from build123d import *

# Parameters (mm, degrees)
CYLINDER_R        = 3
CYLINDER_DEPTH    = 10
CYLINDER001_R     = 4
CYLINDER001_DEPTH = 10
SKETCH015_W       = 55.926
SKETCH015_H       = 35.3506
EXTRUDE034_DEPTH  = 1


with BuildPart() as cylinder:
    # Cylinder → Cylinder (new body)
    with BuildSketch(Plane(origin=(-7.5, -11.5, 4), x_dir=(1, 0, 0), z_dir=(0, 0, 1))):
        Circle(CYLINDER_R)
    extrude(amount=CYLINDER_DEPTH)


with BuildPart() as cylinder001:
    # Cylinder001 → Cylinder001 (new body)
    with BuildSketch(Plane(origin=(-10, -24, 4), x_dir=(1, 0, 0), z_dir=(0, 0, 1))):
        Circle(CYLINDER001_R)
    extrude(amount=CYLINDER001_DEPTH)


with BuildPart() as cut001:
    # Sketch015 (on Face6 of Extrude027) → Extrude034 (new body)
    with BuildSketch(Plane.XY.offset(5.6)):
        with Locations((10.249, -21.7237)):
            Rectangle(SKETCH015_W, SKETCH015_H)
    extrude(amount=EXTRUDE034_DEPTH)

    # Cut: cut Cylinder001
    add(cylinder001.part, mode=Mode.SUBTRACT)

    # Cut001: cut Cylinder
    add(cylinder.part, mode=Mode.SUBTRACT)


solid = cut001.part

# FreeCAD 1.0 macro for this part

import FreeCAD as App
import Part
import Sketcher

V = App.Vector
Q = App.Units.Quantity


def add_polygon(sketch, points):
    """Adds a closed chain of lines whose ends are joined by coincident constraints."""
    first, n = sketch.GeometryCount, len(points)
    for a, b in zip(points, points[1:] + points[:1]):
        sketch.addGeometry(Part.LineSegment(App.Vector(*a, 0), App.Vector(*b, 0)), False)
    for i in range(n):
        sketch.addConstraint(Sketcher.Constraint("Coincident", first + i, 2, first + (i + 1) % n, 1))

doc = App.newDocument("Part")
body = doc.addObject("PartDesign::Body", "Body")

sketch1 = body.newObject("Sketcher::SketchObject", "Sketch")
sketch1.AttachmentSupport = (doc.getObject("XY_Plane"), [""])
sketch1.MapMode = "FlatFace"
sketch1.AttachmentOffset = App.Placement(V(0, 0, 4), App.Rotation())
sketch1.addGeometry(Part.Circle(V(-7.5, -11.5, 0), V(0, 0, 1), 3), False)
sketch1.addConstraint([
    Sketcher.Constraint("Diameter", 0, Q("6 mm")),
    Sketcher.Constraint("DistanceX", 0, 3, -1, 1, Q("7.5 mm")),
    Sketcher.Constraint("DistanceY", 0, 3, -1, 1, Q("11.5 mm")),
])
pad1 = body.newObject("PartDesign::Pad", "Pad")
pad1.Profile = sketch1
pad1.Length = 10
body2 = doc.addObject("PartDesign::Body", "Body001")

sketch2 = body2.newObject("Sketcher::SketchObject", "Sketch001")
sketch2.AttachmentSupport = (doc.getObject("XY_Plane001"), [""])
sketch2.MapMode = "FlatFace"
sketch2.AttachmentOffset = App.Placement(V(0, 0, 4), App.Rotation())
sketch2.addGeometry(Part.Circle(V(-10, -24, 0), V(0, 0, 1), 4), False)
sketch2.addConstraint([
    Sketcher.Constraint("Diameter", 0, Q("8 mm")),
    Sketcher.Constraint("DistanceX", 0, 3, -1, 1, Q("10 mm")),
    Sketcher.Constraint("DistanceY", 0, 3, -1, 1, Q("24 mm")),
])
pad2 = body2.newObject("PartDesign::Pad", "Pad001")
pad2.Profile = sketch2
pad2.Length = 10
body3 = doc.addObject("PartDesign::Body", "Body002")

sketch3 = body3.newObject("Sketcher::SketchObject", "Sketch002")
sketch3.AttachmentSupport = (doc.getObject("XY_Plane002"), [""])
sketch3.MapMode = "FlatFace"
sketch3.AttachmentOffset = App.Placement(V(0, 0, 5.6), App.Rotation())
add_polygon(sketch3, [(-18, -4), (-18, -39), (38, -39), (38, -4)])
sketch3.addConstraint([
    Sketcher.Constraint("Vertical", 0),
    Sketcher.Constraint("Horizontal", 1),
    Sketcher.Constraint("Vertical", 2),
    Sketcher.Constraint("Horizontal", 3),
    Sketcher.Constraint("DistanceX", 1, 1, 1, 2, Q("55.926 mm")),
    Sketcher.Constraint("DistanceY", 0, 2, 0, 1, Q("35.3506 mm")),
    Sketcher.Constraint("DistanceX", 0, 2, -1, 1, Q("17.714 mm")),
    Sketcher.Constraint("DistanceY", 0, 2, -1, 1, Q("39.399 mm")),
])
pad3 = body3.newObject("PartDesign::Pad", "Pad002")
pad3.Profile = sketch3
pad3.Length = 1
doc.recompute()

boolean = body3.newObject("PartDesign::Boolean", "Boolean")
boolean.Type = "Cut"
boolean.addObjects([body2])
doc.recompute()

boolean2 = body3.newObject("PartDesign::Boolean", "Boolean001")
boolean2.Type = "Cut"
boolean2.addObjects([body])

doc.recompute()
